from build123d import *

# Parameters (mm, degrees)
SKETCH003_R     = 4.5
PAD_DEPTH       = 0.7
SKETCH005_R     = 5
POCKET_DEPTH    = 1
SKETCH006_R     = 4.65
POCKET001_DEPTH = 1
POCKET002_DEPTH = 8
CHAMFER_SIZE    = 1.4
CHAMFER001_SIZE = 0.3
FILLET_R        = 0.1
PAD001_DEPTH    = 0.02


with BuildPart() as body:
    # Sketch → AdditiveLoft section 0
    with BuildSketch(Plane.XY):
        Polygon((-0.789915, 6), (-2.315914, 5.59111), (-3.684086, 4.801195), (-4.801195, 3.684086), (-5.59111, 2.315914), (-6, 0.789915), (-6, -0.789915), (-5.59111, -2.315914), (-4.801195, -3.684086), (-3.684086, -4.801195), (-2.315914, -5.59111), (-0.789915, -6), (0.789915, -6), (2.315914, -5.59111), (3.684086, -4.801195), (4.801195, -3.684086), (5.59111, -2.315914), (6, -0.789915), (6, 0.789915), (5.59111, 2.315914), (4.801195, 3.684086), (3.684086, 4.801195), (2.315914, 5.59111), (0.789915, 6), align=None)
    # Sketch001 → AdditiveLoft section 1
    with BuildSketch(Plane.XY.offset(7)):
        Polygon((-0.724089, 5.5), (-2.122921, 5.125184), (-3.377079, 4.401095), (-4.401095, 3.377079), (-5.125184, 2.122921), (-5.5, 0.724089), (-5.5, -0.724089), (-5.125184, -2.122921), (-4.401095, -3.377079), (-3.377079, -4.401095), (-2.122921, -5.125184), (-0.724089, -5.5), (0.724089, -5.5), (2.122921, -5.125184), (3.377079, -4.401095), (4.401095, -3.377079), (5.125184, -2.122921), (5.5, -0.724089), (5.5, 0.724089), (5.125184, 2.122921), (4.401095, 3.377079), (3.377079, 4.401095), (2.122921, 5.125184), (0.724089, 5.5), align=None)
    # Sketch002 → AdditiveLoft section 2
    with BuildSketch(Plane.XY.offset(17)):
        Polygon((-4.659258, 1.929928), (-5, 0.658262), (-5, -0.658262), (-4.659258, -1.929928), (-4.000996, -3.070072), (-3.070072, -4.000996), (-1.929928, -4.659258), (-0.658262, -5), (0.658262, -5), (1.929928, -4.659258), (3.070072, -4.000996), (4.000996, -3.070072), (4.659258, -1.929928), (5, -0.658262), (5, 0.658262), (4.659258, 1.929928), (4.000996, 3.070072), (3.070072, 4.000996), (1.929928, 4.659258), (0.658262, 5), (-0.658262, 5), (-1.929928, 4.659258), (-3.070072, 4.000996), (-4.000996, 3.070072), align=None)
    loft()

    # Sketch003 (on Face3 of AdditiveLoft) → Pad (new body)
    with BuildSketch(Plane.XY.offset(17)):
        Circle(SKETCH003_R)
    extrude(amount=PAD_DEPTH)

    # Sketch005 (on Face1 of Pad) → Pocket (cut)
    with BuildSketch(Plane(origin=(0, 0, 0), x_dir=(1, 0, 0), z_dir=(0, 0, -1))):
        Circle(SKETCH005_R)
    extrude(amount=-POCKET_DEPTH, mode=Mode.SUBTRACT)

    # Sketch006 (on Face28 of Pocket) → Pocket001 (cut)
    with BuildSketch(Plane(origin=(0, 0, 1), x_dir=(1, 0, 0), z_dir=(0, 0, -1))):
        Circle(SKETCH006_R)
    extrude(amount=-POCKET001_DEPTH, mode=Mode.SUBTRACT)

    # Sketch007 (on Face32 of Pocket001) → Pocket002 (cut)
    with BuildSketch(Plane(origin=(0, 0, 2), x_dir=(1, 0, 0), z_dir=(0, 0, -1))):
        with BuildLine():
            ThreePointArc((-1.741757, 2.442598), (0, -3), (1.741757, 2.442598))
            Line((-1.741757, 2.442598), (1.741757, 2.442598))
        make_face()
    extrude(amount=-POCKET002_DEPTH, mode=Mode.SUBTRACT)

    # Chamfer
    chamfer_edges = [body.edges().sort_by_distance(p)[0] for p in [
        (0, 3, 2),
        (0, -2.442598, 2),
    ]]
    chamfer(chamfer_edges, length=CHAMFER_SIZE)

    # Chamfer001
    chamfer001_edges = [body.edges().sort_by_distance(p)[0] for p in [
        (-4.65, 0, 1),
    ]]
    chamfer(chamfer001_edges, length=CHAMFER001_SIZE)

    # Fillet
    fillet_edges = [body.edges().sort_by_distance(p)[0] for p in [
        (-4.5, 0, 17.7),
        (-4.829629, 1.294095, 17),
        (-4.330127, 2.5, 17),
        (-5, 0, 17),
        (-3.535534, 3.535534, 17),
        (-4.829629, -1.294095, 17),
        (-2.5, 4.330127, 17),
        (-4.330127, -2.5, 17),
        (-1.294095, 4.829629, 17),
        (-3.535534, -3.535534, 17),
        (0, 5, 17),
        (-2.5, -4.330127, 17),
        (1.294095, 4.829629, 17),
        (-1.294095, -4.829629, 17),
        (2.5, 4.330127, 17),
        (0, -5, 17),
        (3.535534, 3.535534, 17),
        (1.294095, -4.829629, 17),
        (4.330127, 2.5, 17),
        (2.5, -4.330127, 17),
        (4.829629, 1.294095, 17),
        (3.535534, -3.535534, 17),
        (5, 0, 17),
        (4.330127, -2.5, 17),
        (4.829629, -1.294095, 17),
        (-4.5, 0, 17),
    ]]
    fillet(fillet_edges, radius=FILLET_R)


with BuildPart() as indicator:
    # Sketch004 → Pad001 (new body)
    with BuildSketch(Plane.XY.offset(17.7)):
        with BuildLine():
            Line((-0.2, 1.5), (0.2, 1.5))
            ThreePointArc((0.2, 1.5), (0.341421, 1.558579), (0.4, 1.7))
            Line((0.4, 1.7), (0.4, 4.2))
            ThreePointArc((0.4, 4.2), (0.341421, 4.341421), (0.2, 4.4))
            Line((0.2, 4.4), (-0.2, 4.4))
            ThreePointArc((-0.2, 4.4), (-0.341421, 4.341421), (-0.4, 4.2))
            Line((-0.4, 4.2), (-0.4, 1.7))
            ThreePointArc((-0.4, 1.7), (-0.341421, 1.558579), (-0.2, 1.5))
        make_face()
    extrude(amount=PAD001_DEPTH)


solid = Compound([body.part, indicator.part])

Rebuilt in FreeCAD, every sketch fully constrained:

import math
import FreeCAD as App
import Part
import Sketcher
Q = App.Units.Quantity


def edges_at(feature, points):
    """Names of the edges that pass closest to the given points."""
    edges = feature.Shape.Edges
    near = lambda p: min(range(len(edges)), key=lambda i: edges[i].distToShape(Part.Vertex(*p))[0])
    return sorted({f"Edge{near(p) + 1}" for p in points})


def add_polygon(sketch, points):
    """Adds a closed chain of lines whose ends are joined by coincident constraints."""
    first, n = sketch.GeometryCount, len(points)
    for a, b in zip(points, points[1:] + points[:1]):
        sketch.addGeometry(Part.LineSegment(App.Vector(*a, 0), App.Vector(*b, 0)), False)
    for i in range(n):
        sketch.addConstraint(Sketcher.Constraint("Coincident", first + i, 2, first + (i + 1) % n, 1))

doc = App.newDocument("Part")
body = doc.addObject("PartDesign::Body", "Body")

# Sketch on XY plane
sketch1 = doc.addObject("Sketcher::SketchObject", "Sketch")
body.addObject(sketch1)
sketch1.AttachmentSupport = (doc.XY_Plane, [""])
sketch1.MapMode = "FlatFace"
add_polygon(sketch1, [(-0.789915, 6), (-2.315914, 5.59111), (-3.684086, 4.801195), (-4.801195, 3.684086), (-5.59111, 2.315914), (-6, 0.789915), (-6, -0.789915), (-5.59111, -2.315914), (-4.801195, -3.684086), (-3.684086, -4.801195), (-2.315914, -5.59111), (-0.789915, -6), (0.789915, -6), (2.315914, -5.59111), (3.684086, -4.801195), (4.801195, -3.684086), (5.59111, -2.315914), (6, -0.789915), (6, 0.789915), (5.59111, 2.315914), (4.801195, 3.684086), (3.684086, 4.801195), (2.315914, 5.59111), (0.789915, 6)])  # lines 0-23
sketch1.addConstraint(Sketcher.Constraint("Vertical", 5))
sketch1.addConstraint(Sketcher.Constraint("Horizontal", 11))
sketch1.addConstraint(Sketcher.Constraint("Vertical", 17))
sketch1.addConstraint(Sketcher.Constraint("Horizontal", 23))
sketch1.addConstraint(Sketcher.Constraint("Symmetric", 0, 2, 12, 2, -1, 1))
sketch1.addConstraint(Sketcher.Constraint("Symmetric", 1, 2, 13, 2, -1, 1))
sketch1.addConstraint(Sketcher.Constraint("Symmetric", 2, 2, 14, 2, -1, 1))
sketch1.addConstraint(Sketcher.Constraint("Symmetric", 3, 2, 15, 2, -1, 1))
sketch1.addConstraint(Sketcher.Constraint("Symmetric", 4, 2, 16, 2, -1, 1))
sketch1.addConstraint(Sketcher.Constraint("Symmetric", 6, 2, 18, 2, -1, 1))
sketch1.addConstraint(Sketcher.Constraint("Symmetric", 7, 2, 19, 2, -1, 1))
sketch1.addConstraint(Sketcher.Constraint("Symmetric", 8, 2, 20, 2, -1, 1))
sketch1.addConstraint(Sketcher.Constraint("Symmetric", 9, 2, 21, 2, -1, 1))
sketch1.addConstraint(Sketcher.Constraint("Symmetric", 10, 2, 22, 2, -1, 1))
sketch1.addConstraint(Sketcher.Constraint("Symmetric", 9, 2, 12, 2, -2))
sketch1.addConstraint(Sketcher.Constraint("Symmetric", 8, 2, 13, 2, -2))
sketch1.addConstraint(Sketcher.Constraint("Symmetric", 7, 2, 14, 2, -2))
sketch1.addConstraint(Sketcher.Constraint("Symmetric", 6, 2, 15, 2, -2))
sketch1.addConstraint(Sketcher.Constraint("Perpendicular", 0, 6))
sketch1.addConstraint(Sketcher.Constraint("Perpendicular", 1, 7))
sketch1.addConstraint(Sketcher.Constraint("Perpendicular", 2, 8))
sketch1.addConstraint(Sketcher.Constraint("Perpendicular", 4, 10))
sketch1.addConstraint(Sketcher.Constraint("Perpendicular", 6, 12))
sketch1.addConstraint(Sketcher.Constraint("Perpendicular", 12, 18))
sketch1.addConstraint(Sketcher.Constraint("Horizontal", 5, 2, 16, 2))
sketch1.addConstraint(Sketcher.Constraint("Equal", 23, 5))
sketch1.addConstraint(Sketcher.Constraint("Equal", 0, 1))
sketch1.addConstraint(Sketcher.Constraint("Equal", 1, 2))
sketch1.addConstraint(Sketcher.Constraint("Equal", 2, 3))
sketch1.addConstraint(Sketcher.Constraint("Equal", 3, 4))
sketch1.addConstraint(Sketcher.Constraint("Angle", 0, Q("-165.000007 deg")))
sketch1.addConstraint(Sketcher.Constraint("Angle", 1, Q("-149.999983 deg")))
sketch1.addConstraint(Sketcher.Constraint("DistanceX", 4, 2, -1, 1, Q("6 mm")))
sketch1.addConstraint(Sketcher.Constraint("DistanceY", 6, 2, 2, 2, Q("6 mm")))

# Sketch on XY plane
sketch2 = doc.addObject("Sketcher::SketchObject", "Sketch001")
body.addObject(sketch2)
sketch2.AttachmentSupport = (doc.XY_Plane, [""])
sketch2.MapMode = "FlatFace"
sketch2.AttachmentOffset = App.Placement(App.Vector(0, 0, 7), App.Rotation())
add_polygon(sketch2, [(-0.724089, 5.5), (-2.122921, 5.125184), (-3.377079, 4.401095), (-4.401095, 3.377079), (-5.125184, 2.122921), (-5.5, 0.724089), (-5.5, -0.724089), (-5.125184, -2.122921), (-4.401095, -3.377079), (-3.377079, -4.401095), (-2.122921, -5.125184), (-0.724089, -5.5), (0.724089, -5.5), (2.122921, -5.125184), (3.377079, -4.401095), (4.401095, -3.377079), (5.125184, -2.122921), (5.5, -0.724089), (5.5, 0.724089), (5.125184, 2.122921), (4.401095, 3.377079), (3.377079, 4.401095), (2.122921, 5.125184), (0.724089, 5.5)])  # lines 0-23
sketch2.addConstraint(Sketcher.Constraint("Vertical", 5))
sketch2.addConstraint(Sketcher.Constraint("Horizontal", 11))
sketch2.addConstraint(Sketcher.Constraint("Vertical", 17))
sketch2.addConstraint(Sketcher.Constraint("Horizontal", 23))
sketch2.addConstraint(Sketcher.Constraint("Symmetric", 0, 2, 12, 2, -1, 1))
sketch2.addConstraint(Sketcher.Constraint("Symmetric", 1, 2, 13, 2, -1, 1))
sketch2.addConstraint(Sketcher.Constraint("Symmetric", 2, 2, 14, 2, -1, 1))
sketch2.addConstraint(Sketcher.Constraint("Symmetric", 3, 2, 15, 2, -1, 1))
sketch2.addConstraint(Sketcher.Constraint("Symmetric", 4, 2, 16, 2, -1, 1))
sketch2.addConstraint(Sketcher.Constraint("Symmetric", 6, 2, 18, 2, -1, 1))
sketch2.addConstraint(Sketcher.Constraint("Symmetric", 7, 2, 19, 2, -1, 1))
sketch2.addConstraint(Sketcher.Constraint("Symmetric", 8, 2, 20, 2, -1, 1))
sketch2.addConstraint(Sketcher.Constraint("Symmetric", 9, 2, 21, 2, -1, 1))
sketch2.addConstraint(Sketcher.Constraint("Symmetric", 10, 2, 22, 2, -1, 1))
sketch2.addConstraint(Sketcher.Constraint("Symmetric", 9, 2, 12, 2, -2))
sketch2.addConstraint(Sketcher.Constraint("Symmetric", 8, 2, 13, 2, -2))
sketch2.addConstraint(Sketcher.Constraint("Symmetric", 7, 2, 14, 2, -2))
sketch2.addConstraint(Sketcher.Constraint("Symmetric", 6, 2, 15, 2, -2))
sketch2.addConstraint(Sketcher.Constraint("Perpendicular", 0, 6))
sketch2.addConstraint(Sketcher.Constraint("Perpendicular", 1, 7))
sketch2.addConstraint(Sketcher.Constraint("Perpendicular", 2, 8))
sketch2.addConstraint(Sketcher.Constraint("Perpendicular", 4, 10))
sketch2.addConstraint(Sketcher.Constraint("Perpendicular", 6, 12))
sketch2.addConstraint(Sketcher.Constraint("Perpendicular", 12, 18))
sketch2.addConstraint(Sketcher.Constraint("Horizontal", 5, 2, 16, 2))
sketch2.addConstraint(Sketcher.Constraint("Equal", 23, 5))
sketch2.addConstraint(Sketcher.Constraint("Equal", 0, 1))
sketch2.addConstraint(Sketcher.Constraint("Equal", 1, 2))
sketch2.addConstraint(Sketcher.Constraint("Equal", 2, 3))
sketch2.addConstraint(Sketcher.Constraint("Equal", 3, 4))
sketch2.addConstraint(Sketcher.Constraint("Angle", 0, Q("-164.999996 deg")))
sketch2.addConstraint(Sketcher.Constraint("Angle", 1, Q("-149.999981 deg")))
sketch2.addConstraint(Sketcher.Constraint("DistanceX", 4, 2, -1, 1, Q("5.5 mm")))
sketch2.addConstraint(Sketcher.Constraint("DistanceY", 6, 2, 2, 2, Q("5.5 mm")))

# Sketch on XY plane
sketch3 = doc.addObject("Sketcher::SketchObject", "Sketch002")
body.addObject(sketch3)
sketch3.AttachmentSupport = (doc.XY_Plane, [""])
sketch3.MapMode = "FlatFace"
sketch3.AttachmentOffset = App.Placement(App.Vector(0, 0, 17), App.Rotation())
add_polygon(sketch3, [(-4.659258, 1.929928), (-5, 0.658262), (-5, -0.658262), (-4.659258, -1.929928), (-4.000996, -3.070072), (-3.070072, -4.000996), (-1.929928, -4.659258), (-0.658262, -5), (0.658262, -5), (1.929928, -4.659258), (3.070072, -4.000996), (4.000996, -3.070072), (4.659258, -1.929928), (5, -0.658262), (5, 0.658262), (4.659258, 1.929928), (4.000996, 3.070072), (3.070072, 4.000996), (1.929928, 4.659258), (0.658262, 5), (-0.658262, 5), (-1.929928, 4.659258), (-3.070072, 4.000996), (-4.000996, 3.070072)])  # lines 0-23
sketch3.addConstraint(Sketcher.Constraint("Vertical", 1))
sketch3.addConstraint(Sketcher.Constraint("Horizontal", 7))
sketch3.addConstraint(Sketcher.Constraint("Vertical", 13))
sketch3.addConstraint(Sketcher.Constraint("Horizontal", 19))
sketch3.addConstraint(Sketcher.Constraint("Symmetric", 0, 2, 12, 2, -1, 1))
sketch3.addConstraint(Sketcher.Constraint("Symmetric", 2, 2, 14, 2, -1, 1))
sketch3.addConstraint(Sketcher.Constraint("Symmetric", 3, 2, 15, 2, -1, 1))
sketch3.addConstraint(Sketcher.Constraint("Symmetric", 4, 2, 16, 2, -1, 1))
sketch3.addConstraint(Sketcher.Constraint("Symmetric", 5, 2, 17, 2, -1, 1))
sketch3.addConstraint(Sketcher.Constraint("Symmetric", 6, 2, 18, 2, -1, 1))
sketch3.addConstraint(Sketcher.Constraint("Symmetric", 8, 2, 20, 2, -1, 1))
sketch3.addConstraint(Sketcher.Constraint("Symmetric", 9, 2, 21, 2, -1, 1))
sketch3.addConstraint(Sketcher.Constraint("Symmetric", 10, 2, 22, 2, -1, 1))
sketch3.addConstraint(Sketcher.Constraint("Symmetric", 11, 2, 23, 2, -1, 1))
sketch3.addConstraint(Sketcher.Constraint("Symmetric", 5, 2, 8, 2, -2))
sketch3.addConstraint(Sketcher.Constraint("Symmetric", 4, 2, 9, 2, -2))
sketch3.addConstraint(Sketcher.Constraint("Symmetric", 3, 2, 10, 2, -2))
sketch3.addConstraint(Sketcher.Constraint("Symmetric", 2, 2, 11, 2, -2))
sketch3.addConstraint(Sketcher.Constraint("Perpendicular", 0, 6))
sketch3.addConstraint(Sketcher.Constraint("Perpendicular", 2, 8))
sketch3.addConstraint(Sketcher.Constraint("Perpendicular", 3, 9))
sketch3.addConstraint(Sketcher.Constraint("Perpendicular", 4, 10))
sketch3.addConstraint(Sketcher.Constraint("Perpendicular", 8, 14))
sketch3.addConstraint(Sketcher.Constraint("Perpendicular", 14, 20))
sketch3.addConstraint(Sketcher.Constraint("Horizontal", 1, 2, 12, 2))
sketch3.addConstraint(Sketcher.Constraint("Equal", 19, 1))
sketch3.addConstraint(Sketcher.Constraint("Equal", 2, 3))
sketch3.addConstraint(Sketcher.Constraint("Equal", 3, 4))
sketch3.addConstraint(Sketcher.Constraint("Equal", 4, 5))
sketch3.addConstraint(Sketcher.Constraint("Equal", 5, 6))
sketch3.addConstraint(Sketcher.Constraint("Angle", 0, Q("-105.000005 deg")))
sketch3.addConstraint(Sketcher.Constraint("Angle", 3, Q("-60.000017 deg")))
sketch3.addConstraint(Sketcher.Constraint("DistanceX", 0, 2, -1, 1, Q("5 mm")))
sketch3.addConstraint(Sketcher.Constraint("DistanceX", 4, 2, 8, 2, Q("5 mm")))

additiveloft = doc.addObject("PartDesign::AdditiveLoft", "AdditiveLoft")
body.addObject(additiveloft)
additiveloft.Profile = sketch1
additiveloft.Sections = [sketch2, sketch3]

# Sketch on XY plane
sketch4 = doc.addObject("Sketcher::SketchObject", "Sketch003")
body.addObject(sketch4)
sketch4.AttachmentSupport = (doc.XY_Plane, [""])
sketch4.MapMode = "FlatFace"
sketch4.AttachmentOffset = App.Placement(App.Vector(0, 0, 17), App.Rotation())
sketch4.addGeometry(Part.Circle(App.Vector(0, 0, 0), App.Vector(0, 0, 1), 4.5), False)
sketch4.addConstraint(Sketcher.Constraint("Coincident", 0, 3, -1, 1))
sketch4.addConstraint(Sketcher.Constraint("Diameter", 0, Q("9 mm")))
pad1 = doc.addObject("PartDesign::Pad", "Pad")
body.addObject(pad1)
pad1.Profile = sketch4
pad1.Length = 0.7

# Sketch on XY plane
sketch5 = doc.addObject("Sketcher::SketchObject", "Sketch004")
body.addObject(sketch5)
sketch5.AttachmentSupport = (doc.XY_Plane, [""])
sketch5.MapMode = "FlatFace"
sketch5.addGeometry(Part.Circle(App.Vector(0, 0, 0), App.Vector(0, 0, 1), 5), False)
sketch5.addConstraint(Sketcher.Constraint("Coincident", 0, 3, -1, 1))
sketch5.addConstraint(Sketcher.Constraint("Diameter", 0, Q("10 mm")))
pocket1 = doc.addObject("PartDesign::Pocket", "Pocket")
body.addObject(pocket1)
pocket1.Profile = sketch5
pocket1.Length = 1
pocket1.Reversed = True

# Sketch on XY plane
sketch6 = doc.addObject("Sketcher::SketchObject", "Sketch005")
body.addObject(sketch6)
sketch6.AttachmentSupport = (doc.XY_Plane, [""])
sketch6.MapMode = "FlatFace"
sketch6.AttachmentOffset = App.Placement(App.Vector(0, 0, 1), App.Rotation())
sketch6.addGeometry(Part.Circle(App.Vector(0, 0, 0), App.Vector(0, 0, 1), 4.65), False)
sketch6.addConstraint(Sketcher.Constraint("Coincident", 0, 3, -1, 1))
sketch6.addConstraint(Sketcher.Constraint("Diameter", 0, Q("9.3 mm")))
pocket2 = doc.addObject("PartDesign::Pocket", "Pocket001")
body.addObject(pocket2)
pocket2.Profile = sketch6
pocket2.Length = 1
pocket2.Reversed = True

# Sketch on XY plane
sketch7 = doc.addObject("Sketcher::SketchObject", "Sketch006")
body.addObject(sketch7)
sketch7.AttachmentSupport = (doc.XY_Plane, [""])
sketch7.MapMode = "FlatFace"
sketch7.AttachmentOffset = App.Placement(App.Vector(0, 0, 2), App.Rotation())
sketch7.addGeometry(Part.ArcOfCircle(Part.Circle(App.Vector(0, 0, 0), App.Vector(0, 0, 1), 3), math.radians(-54.508257), math.radians(234.508257)), False)
sketch7.addGeometry(Part.LineSegment(App.Vector(1.741757, -2.442598, 0), App.Vector(-1.741757, -2.442598, 0)), False)
sketch7.addConstraint(Sketcher.Constraint("Coincident", 0, 1, 1, 1))
sketch7.addConstraint(Sketcher.Constraint("Coincident", 1, 2, 0, 2))
sketch7.addConstraint(Sketcher.Constraint("Horizontal", 1))
sketch7.addConstraint(Sketcher.Constraint("Coincident", 0, 3, -1, 1))
sketch7.addConstraint(Sketcher.Constraint("Radius", 0, Q("3 mm")))
sketch7.addConstraint(Sketcher.Constraint("DistanceY", 0, 1, -1, 1, Q("2.442598 mm")))
pocket3 = doc.addObject("PartDesign::Pocket", "Pocket002")
body.addObject(pocket3)
pocket3.Profile = sketch7
pocket3.Length = 8
pocket3.Reversed = True
doc.recompute()

chamfer = doc.addObject("PartDesign::Chamfer", "Chamfer")
body.addObject(chamfer)
chamfer.Base = (pocket3, edges_at(pocket3, [(0, 3, 2), (0, -2.443, 2)]))
chamfer.Size = 1.4
doc.recompute()

chamfer2 = doc.addObject("PartDesign::Chamfer", "Chamfer001")
body.addObject(chamfer2)
chamfer2.Base = (chamfer, edges_at(chamfer, [(-4.65, 0, 1)]))
chamfer2.Size = 0.3
doc.recompute()

fillet = doc.addObject("PartDesign::Fillet", "Fillet")
body.addObject(fillet)
fillet.Base = (chamfer2, edges_at(chamfer2, [
    (-4.5, 0, 17.7),
    (-4.83, 1.294, 17),
    (-4.33, 2.5, 17),
    (-5, 0, 17),
    (-3.536, 3.536, 17),
    (-4.83, -1.294, 17),
    (-2.5, 4.33, 17),
    (-4.33, -2.5, 17),
    (-1.294, 4.83, 17),
    (-3.536, -3.536, 17),
    (0, 5, 17),
    (-2.5, -4.33, 17),
    (1.294, 4.83, 17),
    (-1.294, -4.83, 17),
    (2.5, 4.33, 17),
    (0, -5, 17),
    (3.536, 3.536, 17),
    (1.294, -4.83, 17),
    (4.33, 2.5, 17),
    (2.5, -4.33, 17),
    (4.83, 1.294, 17),
    (3.536, -3.536, 17),
    (5, 0, 17),
    (4.33, -2.5, 17),
    (4.83, -1.294, 17),
    (-4.5, 0, 17),
]))
fillet.Radius = 0.1
body2 = doc.addObject("PartDesign::Body", "Body001")

# Sketch on XY plane
sketch8 = doc.addObject("Sketcher::SketchObject", "Sketch007")
body2.addObject(sketch8)
sketch8.AttachmentSupport = (doc.getObject("XY_Plane001"), [""])
sketch8.MapMode = "FlatFace"
sketch8.AttachmentOffset = App.Placement(App.Vector(0, 0, 17.7), App.Rotation())
sketch8.addGeometry(Part.LineSegment(App.Vector(-0.2, 1.5, 0), App.Vector(0.2, 1.5, 0)), False)
sketch8.addGeometry(Part.ArcOfCircle(Part.Circle(App.Vector(0.199999, 1.700001, 0), App.Vector(0, 0, 1), 0.200001), math.radians(-89.999652), math.radians(-0.000348)), False)
sketch8.addGeometry(Part.LineSegment(App.Vector(0.4, 1.7, 0), App.Vector(0.4, 4.2, 0)), False)
sketch8.addGeometry(Part.ArcOfCircle(Part.Circle(App.Vector(0.199999, 4.199999, 0), App.Vector(0, 0, 1), 0.200001), math.radians(0.000348), math.radians(89.999652)), False)
sketch8.addGeometry(Part.LineSegment(App.Vector(0.2, 4.4, 0), App.Vector(-0.2, 4.4, 0)), False)
sketch8.addGeometry(Part.ArcOfCircle(Part.Circle(App.Vector(-0.199999, 4.199999, 0), App.Vector(0, 0, 1), 0.200001), math.radians(90.000348), math.radians(179.999652)), False)
sketch8.addGeometry(Part.LineSegment(App.Vector(-0.4, 4.2, 0), App.Vector(-0.4, 1.7, 0)), False)
sketch8.addGeometry(Part.ArcOfCircle(Part.Circle(App.Vector(-0.199999, 1.700001, 0), App.Vector(0, 0, 1), 0.200001), math.radians(-179.999652), math.radians(-90.000348)), False)
sketch8.addConstraint(Sketcher.Constraint("Coincident", 0, 2, 1, 1))
sketch8.addConstraint(Sketcher.Constraint("Coincident", 1, 2, 2, 1))
sketch8.addConstraint(Sketcher.Constraint("Coincident", 2, 2, 3, 1))
sketch8.addConstraint(Sketcher.Constraint("Coincident", 3, 2, 4, 1))
sketch8.addConstraint(Sketcher.Constraint("Coincident", 4, 2, 5, 1))
sketch8.addConstraint(Sketcher.Constraint("Coincident", 5, 2, 6, 1))
sketch8.addConstraint(Sketcher.Constraint("Coincident", 6, 2, 7, 1))
sketch8.addConstraint(Sketcher.Constraint("Coincident", 7, 2, 0, 1))
sketch8.addConstraint(Sketcher.Constraint("Horizontal", 0))
sketch8.addConstraint(Sketcher.Constraint("Vertical", 2))
sketch8.addConstraint(Sketcher.Constraint("Horizontal", 4))
sketch8.addConstraint(Sketcher.Constraint("Vertical", 6))
sketch8.addConstraint(Sketcher.Constraint("Equal", 1, 3))
sketch8.addConstraint(Sketcher.Constraint("Equal", 3, 5))
sketch8.addConstraint(Sketcher.Constraint("Equal", 5, 7))
sketch8.addConstraint(Sketcher.Constraint("Symmetric", 2, 2, 5, 2, -2))
sketch8.addConstraint(Sketcher.Constraint("Horizontal", 7, 3, 1, 2))
sketch8.addConstraint(Sketcher.Constraint("Horizontal", 5, 3, 2, 2))
sketch8.addConstraint(Sketcher.Constraint("Horizontal", 1, 2, 6, 2))
sketch8.addConstraint(Sketcher.Constraint("Vertical", 3, 3, 0, 2))
sketch8.addConstraint(Sketcher.Constraint("Vertical", 0, 2, 3, 2))
sketch8.addConstraint(Sketcher.Constraint("Vertical", 7, 3, 4, 2))
sketch8.addConstraint(Sketcher.Constraint("Vertical", 4, 2, 7, 2))
sketch8.addConstraint(Sketcher.Constraint("Radius", 1, Q("0.200001 mm")))
sketch8.addConstraint(Sketcher.Constraint("DistanceX", 0, 1, 0, 2, Q("0.4 mm")))
sketch8.addConstraint(Sketcher.Constraint("DistanceY", 2, 1, 2, 2, Q("2.5 mm")))
sketch8.addConstraint(Sketcher.Constraint("DistanceY", -1, 1, 1, 3, Q("1.700001 mm")))
pad2 = doc.addObject("PartDesign::Pad", "Pad001")
body2.addObject(pad2)
pad2.Profile = sketch8
pad2.Length = 0.02

doc.recompute()
